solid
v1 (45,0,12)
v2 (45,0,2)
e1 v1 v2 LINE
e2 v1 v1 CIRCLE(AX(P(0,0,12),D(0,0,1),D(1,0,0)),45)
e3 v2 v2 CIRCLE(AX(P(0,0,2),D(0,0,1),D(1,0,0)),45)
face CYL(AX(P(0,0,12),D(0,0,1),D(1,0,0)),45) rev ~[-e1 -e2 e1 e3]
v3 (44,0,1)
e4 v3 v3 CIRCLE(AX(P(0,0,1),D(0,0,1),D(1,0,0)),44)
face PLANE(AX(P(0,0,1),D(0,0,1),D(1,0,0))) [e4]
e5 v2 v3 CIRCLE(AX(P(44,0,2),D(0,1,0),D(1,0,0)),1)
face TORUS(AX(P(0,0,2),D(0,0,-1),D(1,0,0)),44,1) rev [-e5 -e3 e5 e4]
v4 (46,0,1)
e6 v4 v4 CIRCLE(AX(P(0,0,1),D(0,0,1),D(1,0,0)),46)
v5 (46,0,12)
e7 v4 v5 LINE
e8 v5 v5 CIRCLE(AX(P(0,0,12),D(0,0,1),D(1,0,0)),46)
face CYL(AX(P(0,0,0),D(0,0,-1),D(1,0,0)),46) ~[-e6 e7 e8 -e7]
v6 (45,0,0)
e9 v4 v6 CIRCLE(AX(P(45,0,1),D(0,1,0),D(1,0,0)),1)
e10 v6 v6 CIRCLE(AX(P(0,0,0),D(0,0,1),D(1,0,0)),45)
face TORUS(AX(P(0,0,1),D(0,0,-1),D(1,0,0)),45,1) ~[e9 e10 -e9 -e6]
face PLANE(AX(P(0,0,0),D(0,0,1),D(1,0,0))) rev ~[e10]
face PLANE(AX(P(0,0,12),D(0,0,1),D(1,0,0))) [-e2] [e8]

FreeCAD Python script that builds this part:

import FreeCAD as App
import Part
import Sketcher
from FreeCAD import Vector
Q = App.Units.Quantity


def edges_at(feature, points):
    """Names of the edges that pass closest to the given points."""
    edges = feature.Shape.Edges
    near = lambda p: min(range(len(edges)), key=lambda i: edges[i].distToShape(Part.Vertex(*p))[0])
    return sorted({f"Edge{near(p) + 1}" for p in points})

doc = App.newDocument("Part")
params = doc.addObject("Spreadsheet::Sheet", "Params")
for row, (alias, value) in enumerate([
    ("sketch1_diameter", "92 mm"),
    ("pad1_length", "12 mm"),
    ("sketch2_diameter", "90 mm"),
    ("pocket1_length", "11 mm"),
    ("fillet_radius", "1 mm"),
], start=1):
    params.set(f"A{row}", alias)
    params.set(f"B{row}", "=" + value)
    params.setAlias(f"B{row}", alias)

body = doc.addObject("PartDesign::Body", "Body")

# Sketch on XY plane
sketch1 = body.newObject("Sketcher::SketchObject", "Sketch")
sketch1.AttachmentSupport = (doc.getObject("XY_Plane"), [""])
sketch1.MapMode = "FlatFace"
sketch1.addGeometry(Part.Circle(Vector(0, 0, 0), Vector(0, 0, 1), 46), False)
sketch1.addConstraint(Sketcher.Constraint("Coincident", 0, 3, -1, 1))
sketch1.addConstraint(Sketcher.Constraint("Diameter", 0, Q("92 mm")))
sketch1.setExpression("Constraints[1]", "Params.sketch1_diameter")
pad1 = body.newObject("PartDesign::Pad", "Pad")
pad1.Profile = sketch1
pad1.setExpression("Length", "Params.pad1_length")

# Sketch on XY plane
sketch2 = body.newObject("Sketcher::SketchObject", "Sketch001")
sketch2.AttachmentSupport = (doc.getObject("XY_Plane"), [""])
sketch2.MapMode = "FlatFace"
sketch2.AttachmentOffset = App.Placement(Vector(0, 0, 12), App.Rotation())
sketch2.addGeometry(Part.Circle(Vector(0, 0, 0), Vector(0, 0, 1), 45), False)
sketch2.addConstraint(Sketcher.Constraint("Coincident", 0, 3, -1, 1))
sketch2.addConstraint(Sketcher.Constraint("Diameter", 0, Q("90 mm")))
sketch2.setExpression("Constraints[1]", "Params.sketch2_diameter")
pocket1 = body.newObject("PartDesign::Pocket", "Pocket")
pocket1.Profile = sketch2
pocket1.setExpression("Length", "Params.pocket1_length")
doc.recompute()

fillet = body.newObject("PartDesign::Fillet", "Fillet")
fillet.Base = (pocket1, edges_at(pocket1, [(-46, 0, 0), (-45, 0, 1)]))
fillet.setExpression("Radius", "Params.fillet_radius")

doc.recompute()
